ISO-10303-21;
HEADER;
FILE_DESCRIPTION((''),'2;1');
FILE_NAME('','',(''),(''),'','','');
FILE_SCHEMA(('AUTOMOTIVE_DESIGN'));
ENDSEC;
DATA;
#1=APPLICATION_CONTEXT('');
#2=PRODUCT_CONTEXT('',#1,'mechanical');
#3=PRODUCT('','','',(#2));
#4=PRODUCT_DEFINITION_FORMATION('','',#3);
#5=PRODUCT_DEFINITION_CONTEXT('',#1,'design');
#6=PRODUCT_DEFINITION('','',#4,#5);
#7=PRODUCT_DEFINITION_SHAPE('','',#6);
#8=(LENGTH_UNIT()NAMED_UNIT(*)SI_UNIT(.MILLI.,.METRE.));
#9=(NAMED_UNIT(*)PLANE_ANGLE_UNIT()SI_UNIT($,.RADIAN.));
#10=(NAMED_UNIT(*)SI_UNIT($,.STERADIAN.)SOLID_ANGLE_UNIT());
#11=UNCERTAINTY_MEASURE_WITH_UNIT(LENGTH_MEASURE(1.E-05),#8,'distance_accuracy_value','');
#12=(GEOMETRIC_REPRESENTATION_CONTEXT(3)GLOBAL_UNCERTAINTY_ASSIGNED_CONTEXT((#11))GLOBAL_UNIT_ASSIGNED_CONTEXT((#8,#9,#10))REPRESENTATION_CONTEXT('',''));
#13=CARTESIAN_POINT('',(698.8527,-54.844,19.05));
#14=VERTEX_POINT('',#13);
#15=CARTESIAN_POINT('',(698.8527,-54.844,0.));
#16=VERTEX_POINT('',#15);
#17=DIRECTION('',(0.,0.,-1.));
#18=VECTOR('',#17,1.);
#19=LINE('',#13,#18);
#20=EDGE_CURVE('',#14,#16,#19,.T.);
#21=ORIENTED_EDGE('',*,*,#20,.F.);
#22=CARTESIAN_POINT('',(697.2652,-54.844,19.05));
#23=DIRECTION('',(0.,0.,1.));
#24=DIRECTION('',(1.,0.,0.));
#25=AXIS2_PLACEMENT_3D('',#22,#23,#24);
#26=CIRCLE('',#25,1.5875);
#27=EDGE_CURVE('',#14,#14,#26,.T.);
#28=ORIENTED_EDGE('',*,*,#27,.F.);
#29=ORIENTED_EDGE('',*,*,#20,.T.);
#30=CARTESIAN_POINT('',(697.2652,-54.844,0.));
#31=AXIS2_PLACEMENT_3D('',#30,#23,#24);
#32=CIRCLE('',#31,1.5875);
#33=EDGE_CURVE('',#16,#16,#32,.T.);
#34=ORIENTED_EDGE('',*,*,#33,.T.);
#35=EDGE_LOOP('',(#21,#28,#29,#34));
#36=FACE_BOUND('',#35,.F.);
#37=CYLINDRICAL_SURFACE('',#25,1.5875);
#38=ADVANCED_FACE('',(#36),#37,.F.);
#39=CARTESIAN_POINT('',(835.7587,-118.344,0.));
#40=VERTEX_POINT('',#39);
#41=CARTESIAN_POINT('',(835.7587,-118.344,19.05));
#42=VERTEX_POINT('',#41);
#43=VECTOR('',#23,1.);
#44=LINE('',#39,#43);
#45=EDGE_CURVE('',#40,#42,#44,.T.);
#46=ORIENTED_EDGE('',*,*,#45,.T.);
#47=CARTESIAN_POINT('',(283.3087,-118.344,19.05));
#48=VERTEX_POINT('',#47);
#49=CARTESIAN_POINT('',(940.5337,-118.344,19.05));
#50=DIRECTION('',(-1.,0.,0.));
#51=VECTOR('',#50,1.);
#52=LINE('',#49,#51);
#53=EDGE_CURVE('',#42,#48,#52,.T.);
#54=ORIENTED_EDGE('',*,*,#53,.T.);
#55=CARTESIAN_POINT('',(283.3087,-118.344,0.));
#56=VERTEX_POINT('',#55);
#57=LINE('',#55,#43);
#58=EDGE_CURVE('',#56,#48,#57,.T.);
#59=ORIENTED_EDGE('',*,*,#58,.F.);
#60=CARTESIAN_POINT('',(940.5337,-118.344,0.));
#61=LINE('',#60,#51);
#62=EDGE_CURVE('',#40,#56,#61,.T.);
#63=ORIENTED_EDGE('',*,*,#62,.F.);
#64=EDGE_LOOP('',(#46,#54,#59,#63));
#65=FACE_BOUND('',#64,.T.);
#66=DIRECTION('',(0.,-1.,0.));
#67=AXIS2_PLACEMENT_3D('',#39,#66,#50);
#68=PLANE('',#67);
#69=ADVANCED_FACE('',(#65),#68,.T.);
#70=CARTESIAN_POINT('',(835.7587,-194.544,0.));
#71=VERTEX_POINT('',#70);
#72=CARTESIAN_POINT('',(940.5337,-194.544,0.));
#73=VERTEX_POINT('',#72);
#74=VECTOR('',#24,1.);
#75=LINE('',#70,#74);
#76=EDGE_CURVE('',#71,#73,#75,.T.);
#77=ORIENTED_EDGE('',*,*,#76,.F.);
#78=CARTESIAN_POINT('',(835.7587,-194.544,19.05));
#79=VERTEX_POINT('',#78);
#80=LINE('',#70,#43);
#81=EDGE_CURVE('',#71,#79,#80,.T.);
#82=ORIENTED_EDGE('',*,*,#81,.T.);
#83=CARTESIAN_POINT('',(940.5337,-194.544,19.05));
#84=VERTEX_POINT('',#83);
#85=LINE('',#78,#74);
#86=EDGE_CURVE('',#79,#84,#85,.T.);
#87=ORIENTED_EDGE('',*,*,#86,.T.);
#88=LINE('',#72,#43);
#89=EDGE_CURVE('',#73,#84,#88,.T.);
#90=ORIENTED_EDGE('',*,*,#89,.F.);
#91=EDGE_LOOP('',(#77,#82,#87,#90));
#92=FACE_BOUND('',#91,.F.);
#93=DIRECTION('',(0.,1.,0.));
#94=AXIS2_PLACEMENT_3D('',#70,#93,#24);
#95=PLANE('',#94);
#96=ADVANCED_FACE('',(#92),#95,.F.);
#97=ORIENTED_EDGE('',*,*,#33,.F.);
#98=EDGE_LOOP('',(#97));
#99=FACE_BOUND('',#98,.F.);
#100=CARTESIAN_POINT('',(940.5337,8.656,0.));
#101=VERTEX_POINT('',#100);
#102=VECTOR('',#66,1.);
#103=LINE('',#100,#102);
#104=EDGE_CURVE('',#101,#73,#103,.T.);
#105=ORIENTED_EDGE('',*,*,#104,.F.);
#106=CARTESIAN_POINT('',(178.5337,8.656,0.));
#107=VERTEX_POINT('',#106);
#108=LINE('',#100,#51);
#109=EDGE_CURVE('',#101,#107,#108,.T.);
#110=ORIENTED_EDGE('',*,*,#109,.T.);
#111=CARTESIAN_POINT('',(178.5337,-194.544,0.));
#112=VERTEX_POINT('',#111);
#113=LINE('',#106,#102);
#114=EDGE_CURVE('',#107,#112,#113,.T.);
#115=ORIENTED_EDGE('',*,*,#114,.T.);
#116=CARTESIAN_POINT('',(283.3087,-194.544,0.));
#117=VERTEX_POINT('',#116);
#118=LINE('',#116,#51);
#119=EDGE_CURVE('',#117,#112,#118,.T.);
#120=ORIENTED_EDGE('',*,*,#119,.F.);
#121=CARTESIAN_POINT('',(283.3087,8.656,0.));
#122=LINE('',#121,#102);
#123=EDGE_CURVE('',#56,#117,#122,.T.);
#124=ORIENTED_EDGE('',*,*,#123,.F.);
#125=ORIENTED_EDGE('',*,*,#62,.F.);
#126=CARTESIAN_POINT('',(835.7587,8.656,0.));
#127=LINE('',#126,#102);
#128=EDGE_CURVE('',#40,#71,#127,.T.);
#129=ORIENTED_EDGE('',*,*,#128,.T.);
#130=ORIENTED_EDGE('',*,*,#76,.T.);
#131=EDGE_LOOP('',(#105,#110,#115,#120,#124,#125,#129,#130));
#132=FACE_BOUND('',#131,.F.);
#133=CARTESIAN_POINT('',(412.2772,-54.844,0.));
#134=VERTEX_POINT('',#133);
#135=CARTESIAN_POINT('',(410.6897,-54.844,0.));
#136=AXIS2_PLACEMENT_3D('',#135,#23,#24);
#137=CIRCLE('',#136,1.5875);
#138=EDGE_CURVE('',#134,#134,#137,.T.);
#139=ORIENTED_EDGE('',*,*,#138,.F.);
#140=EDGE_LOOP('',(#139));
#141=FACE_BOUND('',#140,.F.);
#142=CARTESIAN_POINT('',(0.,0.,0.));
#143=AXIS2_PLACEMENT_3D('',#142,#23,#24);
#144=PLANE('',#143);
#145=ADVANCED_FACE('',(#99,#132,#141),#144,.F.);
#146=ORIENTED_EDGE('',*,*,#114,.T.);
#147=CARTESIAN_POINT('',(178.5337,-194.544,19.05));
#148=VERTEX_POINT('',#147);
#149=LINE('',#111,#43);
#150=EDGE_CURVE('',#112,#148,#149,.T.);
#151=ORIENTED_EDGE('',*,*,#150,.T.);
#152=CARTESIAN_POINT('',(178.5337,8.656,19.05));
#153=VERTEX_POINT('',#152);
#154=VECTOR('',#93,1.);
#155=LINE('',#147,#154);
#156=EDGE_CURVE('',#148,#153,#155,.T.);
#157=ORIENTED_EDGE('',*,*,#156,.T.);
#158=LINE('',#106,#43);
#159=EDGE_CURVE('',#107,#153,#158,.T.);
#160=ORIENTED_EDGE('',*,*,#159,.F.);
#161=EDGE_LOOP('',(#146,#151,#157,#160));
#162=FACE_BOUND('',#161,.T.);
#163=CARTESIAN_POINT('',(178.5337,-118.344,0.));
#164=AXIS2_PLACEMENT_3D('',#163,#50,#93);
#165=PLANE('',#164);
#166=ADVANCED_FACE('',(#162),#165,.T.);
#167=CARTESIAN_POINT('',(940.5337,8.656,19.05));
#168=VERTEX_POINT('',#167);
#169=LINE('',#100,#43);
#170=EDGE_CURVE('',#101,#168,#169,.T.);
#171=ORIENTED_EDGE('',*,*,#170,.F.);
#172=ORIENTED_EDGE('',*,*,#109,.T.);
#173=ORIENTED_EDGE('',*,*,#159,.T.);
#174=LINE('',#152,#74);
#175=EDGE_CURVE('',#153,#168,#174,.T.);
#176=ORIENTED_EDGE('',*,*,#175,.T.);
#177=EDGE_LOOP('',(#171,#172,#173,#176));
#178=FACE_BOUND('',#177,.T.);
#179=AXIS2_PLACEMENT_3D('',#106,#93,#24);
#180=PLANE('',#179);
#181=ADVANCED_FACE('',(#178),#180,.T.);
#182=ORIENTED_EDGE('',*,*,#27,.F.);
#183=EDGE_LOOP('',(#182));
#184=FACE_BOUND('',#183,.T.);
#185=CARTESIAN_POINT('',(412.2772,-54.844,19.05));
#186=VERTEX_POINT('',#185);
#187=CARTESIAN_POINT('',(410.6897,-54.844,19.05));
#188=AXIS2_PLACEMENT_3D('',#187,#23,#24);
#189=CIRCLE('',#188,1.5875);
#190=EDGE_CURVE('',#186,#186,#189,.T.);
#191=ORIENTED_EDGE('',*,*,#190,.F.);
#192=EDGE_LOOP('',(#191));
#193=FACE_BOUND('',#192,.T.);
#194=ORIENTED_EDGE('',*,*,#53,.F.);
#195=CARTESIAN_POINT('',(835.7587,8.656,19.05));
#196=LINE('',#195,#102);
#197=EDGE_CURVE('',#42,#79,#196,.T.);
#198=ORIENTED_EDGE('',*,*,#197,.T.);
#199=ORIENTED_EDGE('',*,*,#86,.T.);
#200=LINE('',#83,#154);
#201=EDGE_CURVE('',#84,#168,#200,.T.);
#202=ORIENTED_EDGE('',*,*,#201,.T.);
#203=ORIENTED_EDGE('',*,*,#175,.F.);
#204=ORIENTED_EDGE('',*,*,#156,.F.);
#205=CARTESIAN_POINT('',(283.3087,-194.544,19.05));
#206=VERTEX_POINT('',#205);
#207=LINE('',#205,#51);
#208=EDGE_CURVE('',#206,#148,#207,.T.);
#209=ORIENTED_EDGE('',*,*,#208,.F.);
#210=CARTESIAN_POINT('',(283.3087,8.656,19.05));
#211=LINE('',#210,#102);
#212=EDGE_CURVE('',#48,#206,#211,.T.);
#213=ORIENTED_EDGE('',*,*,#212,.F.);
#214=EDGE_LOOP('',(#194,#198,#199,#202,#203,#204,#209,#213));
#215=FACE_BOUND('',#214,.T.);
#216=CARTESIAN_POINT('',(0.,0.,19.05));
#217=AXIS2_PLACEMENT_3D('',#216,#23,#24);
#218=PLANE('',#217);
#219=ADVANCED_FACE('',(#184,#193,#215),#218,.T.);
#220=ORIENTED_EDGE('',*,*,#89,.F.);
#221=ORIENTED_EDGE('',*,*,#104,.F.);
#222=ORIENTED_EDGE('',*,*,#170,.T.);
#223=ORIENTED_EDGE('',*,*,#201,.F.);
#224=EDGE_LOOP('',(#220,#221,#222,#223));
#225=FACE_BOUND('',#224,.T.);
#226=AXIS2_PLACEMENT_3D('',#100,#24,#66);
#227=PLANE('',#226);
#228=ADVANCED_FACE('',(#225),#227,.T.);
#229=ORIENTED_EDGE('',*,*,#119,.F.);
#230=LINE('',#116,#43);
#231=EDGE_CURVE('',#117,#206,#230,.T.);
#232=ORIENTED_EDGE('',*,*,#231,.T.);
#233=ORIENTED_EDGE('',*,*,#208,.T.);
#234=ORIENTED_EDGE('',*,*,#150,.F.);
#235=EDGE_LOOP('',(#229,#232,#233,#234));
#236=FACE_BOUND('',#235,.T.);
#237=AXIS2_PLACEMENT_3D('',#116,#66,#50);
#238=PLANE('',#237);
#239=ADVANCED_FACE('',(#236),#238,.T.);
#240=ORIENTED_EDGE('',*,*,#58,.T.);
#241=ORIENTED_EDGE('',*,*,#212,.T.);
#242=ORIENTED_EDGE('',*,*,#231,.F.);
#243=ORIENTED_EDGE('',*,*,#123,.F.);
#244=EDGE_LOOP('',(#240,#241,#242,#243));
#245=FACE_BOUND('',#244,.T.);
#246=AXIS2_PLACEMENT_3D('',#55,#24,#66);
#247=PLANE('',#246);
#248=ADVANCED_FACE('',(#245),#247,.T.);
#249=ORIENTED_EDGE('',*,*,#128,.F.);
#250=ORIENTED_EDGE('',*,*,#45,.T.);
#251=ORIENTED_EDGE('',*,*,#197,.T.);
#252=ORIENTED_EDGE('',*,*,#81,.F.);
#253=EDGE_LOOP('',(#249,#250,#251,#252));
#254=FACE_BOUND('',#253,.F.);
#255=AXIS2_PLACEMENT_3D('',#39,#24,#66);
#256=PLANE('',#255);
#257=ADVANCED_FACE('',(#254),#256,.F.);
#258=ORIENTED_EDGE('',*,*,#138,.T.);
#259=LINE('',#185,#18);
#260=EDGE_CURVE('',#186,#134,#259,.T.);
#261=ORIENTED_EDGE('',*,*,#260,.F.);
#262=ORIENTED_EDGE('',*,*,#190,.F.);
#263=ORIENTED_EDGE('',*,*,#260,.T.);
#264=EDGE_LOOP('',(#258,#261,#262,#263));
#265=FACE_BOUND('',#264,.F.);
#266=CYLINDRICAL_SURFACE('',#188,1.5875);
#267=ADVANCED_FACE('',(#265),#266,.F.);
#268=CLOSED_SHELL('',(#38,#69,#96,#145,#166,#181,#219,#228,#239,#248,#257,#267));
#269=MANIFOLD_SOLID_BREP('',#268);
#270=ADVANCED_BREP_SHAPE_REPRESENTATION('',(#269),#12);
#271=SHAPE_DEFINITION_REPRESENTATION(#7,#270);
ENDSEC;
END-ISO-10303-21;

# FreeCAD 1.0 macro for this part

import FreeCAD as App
import Part
import Sketcher
Q = App.Units.Quantity

doc = App.newDocument("Part")
body = doc.addObject("PartDesign::Body", "Body")

sketch1 = body.newObject("Sketcher::SketchObject", "Sketch")
sketch1.AttachmentSupport = (doc.getObject("XY_Plane"), [""])
sketch1.MapMode = "FlatFace"
sketch1.addGeometry(Part.LineSegment(App.Vector(178.5337, 8.656, 0), App.Vector(178.5337, -194.544, 0)), False)
sketch1.addGeometry(Part.LineSegment(App.Vector(178.5337, -194.544, 0), App.Vector(283.3087, -194.544, 0)), False)
sketch1.addGeometry(Part.LineSegment(App.Vector(283.3087, -194.544, 0), App.Vector(283.3087, -118.344, 0)), False)
sketch1.addGeometry(Part.LineSegment(App.Vector(283.3087, -118.344, 0), App.Vector(835.7587, -118.344, 0)), False)
sketch1.addGeometry(Part.LineSegment(App.Vector(835.7587, -118.344, 0), App.Vector(835.7587, -194.544, 0)), False)
sketch1.addGeometry(Part.LineSegment(App.Vector(835.7587, -194.544, 0), App.Vector(940.5337, -194.544, 0)), False)
sketch1.addGeometry(Part.LineSegment(App.Vector(940.5337, -194.544, 0), App.Vector(940.5337, 8.656, 0)), False)
sketch1.addGeometry(Part.LineSegment(App.Vector(940.5337, 8.656, 0), App.Vector(178.5337, 8.656, 0)), False)
sketch1.addConstraint(Sketcher.Constraint("Coincident", 0, 2, 1, 1))
sketch1.addConstraint(Sketcher.Constraint("Coincident", 1, 2, 2, 1))
sketch1.addConstraint(Sketcher.Constraint("Coincident", 2, 2, 3, 1))
sketch1.addConstraint(Sketcher.Constraint("Coincident", 3, 2, 4, 1))
sketch1.addConstraint(Sketcher.Constraint("Coincident", 4, 2, 5, 1))
sketch1.addConstraint(Sketcher.Constraint("Coincident", 5, 2, 6, 1))
sketch1.addConstraint(Sketcher.Constraint("Coincident", 6, 2, 7, 1))
sketch1.addConstraint(Sketcher.Constraint("Coincident", 7, 2, 0, 1))
sketch1.addConstraint(Sketcher.Constraint("Vertical", 0))
sketch1.addConstraint(Sketcher.Constraint("Horizontal", 1))
sketch1.addConstraint(Sketcher.Constraint("Vertical", 2))
sketch1.addConstraint(Sketcher.Constraint("Horizontal", 3))
sketch1.addConstraint(Sketcher.Constraint("Vertical", 4))
sketch1.addConstraint(Sketcher.Constraint("Horizontal", 5))
sketch1.addConstraint(Sketcher.Constraint("Vertical", 6))
sketch1.addConstraint(Sketcher.Constraint("Horizontal", 7))
sketch1.addConstraint(Sketcher.Constraint("Horizontal", 1, 2, 4, 2))
sketch1.addConstraint(Sketcher.Constraint("Equal", 1, 5))
sketch1.addConstraint(Sketcher.Constraint("DistanceX", 7, 2, 7, 1, Q("30 in")))
sketch1.addConstraint(Sketcher.Constraint("DistanceY", 0, 2, 0, 1, Q("8 in")))
sketch1.addConstraint(Sketcher.Constraint("DistanceY", 3, 2, 6, 2, Q("5 in")))
sketch1.addConstraint(Sketcher.Constraint("DistanceX", 1, 1, 1, 2, Q("4.125 in")))
sketch1.addConstraint(Sketcher.Constraint("DistanceX", -1, 1, 0, 2, 178.5337))
sketch1.addConstraint(Sketcher.Constraint("DistanceY", 0, 2, -1, 1, 194.544))
pad1 = body.newObject("PartDesign::Pad", "Pad")
pad1.Profile = sketch1
pad1.Length = Q("0.75 in")

sketch2 = body.newObject("Sketcher::SketchObject", "Sketch001")
sketch2.AttachmentSupport = (doc.getObject("XY_Plane"), [""])
sketch2.MapMode = "FlatFace"
sketch2.AttachmentOffset = App.Placement(App.Vector(0, 0, 0.75 * 25.4), App.Rotation())
sketch2.addGeometry(Part.Circle(App.Vector(410.6897, -54.844, 0), App.Vector(0, 0, 1), 1.5875), False)
sketch2.addGeometry(Part.Circle(App.Vector(697.2652, -54.844, 0), App.Vector(0, 0, 1), 1.5875), False)
sketch2.addConstraint(Sketcher.Constraint("Equal", 0, 1))
sketch2.addConstraint(Sketcher.Constraint("Horizontal", 0, 3, 1, 3))
sketch2.addConstraint(Sketcher.Constraint("Diameter", 0, Q("0.125 in")))
sketch2.addConstraint(Sketcher.Constraint("DistanceX", 0, 3, 1, 3, Q("11.2825 in")))
sketch2.addConstraint(Sketcher.Constraint("DistanceX", -1, 1, 0, 3, 410.6897))
sketch2.addConstraint(Sketcher.Constraint("DistanceY", 0, 3, -1, 1, 54.844))
pocket1 = body.newObject("PartDesign::Pocket", "Pocket")
pocket1.Profile = sketch2
pocket1.Length = Q("1 in")

doc.recompute()
